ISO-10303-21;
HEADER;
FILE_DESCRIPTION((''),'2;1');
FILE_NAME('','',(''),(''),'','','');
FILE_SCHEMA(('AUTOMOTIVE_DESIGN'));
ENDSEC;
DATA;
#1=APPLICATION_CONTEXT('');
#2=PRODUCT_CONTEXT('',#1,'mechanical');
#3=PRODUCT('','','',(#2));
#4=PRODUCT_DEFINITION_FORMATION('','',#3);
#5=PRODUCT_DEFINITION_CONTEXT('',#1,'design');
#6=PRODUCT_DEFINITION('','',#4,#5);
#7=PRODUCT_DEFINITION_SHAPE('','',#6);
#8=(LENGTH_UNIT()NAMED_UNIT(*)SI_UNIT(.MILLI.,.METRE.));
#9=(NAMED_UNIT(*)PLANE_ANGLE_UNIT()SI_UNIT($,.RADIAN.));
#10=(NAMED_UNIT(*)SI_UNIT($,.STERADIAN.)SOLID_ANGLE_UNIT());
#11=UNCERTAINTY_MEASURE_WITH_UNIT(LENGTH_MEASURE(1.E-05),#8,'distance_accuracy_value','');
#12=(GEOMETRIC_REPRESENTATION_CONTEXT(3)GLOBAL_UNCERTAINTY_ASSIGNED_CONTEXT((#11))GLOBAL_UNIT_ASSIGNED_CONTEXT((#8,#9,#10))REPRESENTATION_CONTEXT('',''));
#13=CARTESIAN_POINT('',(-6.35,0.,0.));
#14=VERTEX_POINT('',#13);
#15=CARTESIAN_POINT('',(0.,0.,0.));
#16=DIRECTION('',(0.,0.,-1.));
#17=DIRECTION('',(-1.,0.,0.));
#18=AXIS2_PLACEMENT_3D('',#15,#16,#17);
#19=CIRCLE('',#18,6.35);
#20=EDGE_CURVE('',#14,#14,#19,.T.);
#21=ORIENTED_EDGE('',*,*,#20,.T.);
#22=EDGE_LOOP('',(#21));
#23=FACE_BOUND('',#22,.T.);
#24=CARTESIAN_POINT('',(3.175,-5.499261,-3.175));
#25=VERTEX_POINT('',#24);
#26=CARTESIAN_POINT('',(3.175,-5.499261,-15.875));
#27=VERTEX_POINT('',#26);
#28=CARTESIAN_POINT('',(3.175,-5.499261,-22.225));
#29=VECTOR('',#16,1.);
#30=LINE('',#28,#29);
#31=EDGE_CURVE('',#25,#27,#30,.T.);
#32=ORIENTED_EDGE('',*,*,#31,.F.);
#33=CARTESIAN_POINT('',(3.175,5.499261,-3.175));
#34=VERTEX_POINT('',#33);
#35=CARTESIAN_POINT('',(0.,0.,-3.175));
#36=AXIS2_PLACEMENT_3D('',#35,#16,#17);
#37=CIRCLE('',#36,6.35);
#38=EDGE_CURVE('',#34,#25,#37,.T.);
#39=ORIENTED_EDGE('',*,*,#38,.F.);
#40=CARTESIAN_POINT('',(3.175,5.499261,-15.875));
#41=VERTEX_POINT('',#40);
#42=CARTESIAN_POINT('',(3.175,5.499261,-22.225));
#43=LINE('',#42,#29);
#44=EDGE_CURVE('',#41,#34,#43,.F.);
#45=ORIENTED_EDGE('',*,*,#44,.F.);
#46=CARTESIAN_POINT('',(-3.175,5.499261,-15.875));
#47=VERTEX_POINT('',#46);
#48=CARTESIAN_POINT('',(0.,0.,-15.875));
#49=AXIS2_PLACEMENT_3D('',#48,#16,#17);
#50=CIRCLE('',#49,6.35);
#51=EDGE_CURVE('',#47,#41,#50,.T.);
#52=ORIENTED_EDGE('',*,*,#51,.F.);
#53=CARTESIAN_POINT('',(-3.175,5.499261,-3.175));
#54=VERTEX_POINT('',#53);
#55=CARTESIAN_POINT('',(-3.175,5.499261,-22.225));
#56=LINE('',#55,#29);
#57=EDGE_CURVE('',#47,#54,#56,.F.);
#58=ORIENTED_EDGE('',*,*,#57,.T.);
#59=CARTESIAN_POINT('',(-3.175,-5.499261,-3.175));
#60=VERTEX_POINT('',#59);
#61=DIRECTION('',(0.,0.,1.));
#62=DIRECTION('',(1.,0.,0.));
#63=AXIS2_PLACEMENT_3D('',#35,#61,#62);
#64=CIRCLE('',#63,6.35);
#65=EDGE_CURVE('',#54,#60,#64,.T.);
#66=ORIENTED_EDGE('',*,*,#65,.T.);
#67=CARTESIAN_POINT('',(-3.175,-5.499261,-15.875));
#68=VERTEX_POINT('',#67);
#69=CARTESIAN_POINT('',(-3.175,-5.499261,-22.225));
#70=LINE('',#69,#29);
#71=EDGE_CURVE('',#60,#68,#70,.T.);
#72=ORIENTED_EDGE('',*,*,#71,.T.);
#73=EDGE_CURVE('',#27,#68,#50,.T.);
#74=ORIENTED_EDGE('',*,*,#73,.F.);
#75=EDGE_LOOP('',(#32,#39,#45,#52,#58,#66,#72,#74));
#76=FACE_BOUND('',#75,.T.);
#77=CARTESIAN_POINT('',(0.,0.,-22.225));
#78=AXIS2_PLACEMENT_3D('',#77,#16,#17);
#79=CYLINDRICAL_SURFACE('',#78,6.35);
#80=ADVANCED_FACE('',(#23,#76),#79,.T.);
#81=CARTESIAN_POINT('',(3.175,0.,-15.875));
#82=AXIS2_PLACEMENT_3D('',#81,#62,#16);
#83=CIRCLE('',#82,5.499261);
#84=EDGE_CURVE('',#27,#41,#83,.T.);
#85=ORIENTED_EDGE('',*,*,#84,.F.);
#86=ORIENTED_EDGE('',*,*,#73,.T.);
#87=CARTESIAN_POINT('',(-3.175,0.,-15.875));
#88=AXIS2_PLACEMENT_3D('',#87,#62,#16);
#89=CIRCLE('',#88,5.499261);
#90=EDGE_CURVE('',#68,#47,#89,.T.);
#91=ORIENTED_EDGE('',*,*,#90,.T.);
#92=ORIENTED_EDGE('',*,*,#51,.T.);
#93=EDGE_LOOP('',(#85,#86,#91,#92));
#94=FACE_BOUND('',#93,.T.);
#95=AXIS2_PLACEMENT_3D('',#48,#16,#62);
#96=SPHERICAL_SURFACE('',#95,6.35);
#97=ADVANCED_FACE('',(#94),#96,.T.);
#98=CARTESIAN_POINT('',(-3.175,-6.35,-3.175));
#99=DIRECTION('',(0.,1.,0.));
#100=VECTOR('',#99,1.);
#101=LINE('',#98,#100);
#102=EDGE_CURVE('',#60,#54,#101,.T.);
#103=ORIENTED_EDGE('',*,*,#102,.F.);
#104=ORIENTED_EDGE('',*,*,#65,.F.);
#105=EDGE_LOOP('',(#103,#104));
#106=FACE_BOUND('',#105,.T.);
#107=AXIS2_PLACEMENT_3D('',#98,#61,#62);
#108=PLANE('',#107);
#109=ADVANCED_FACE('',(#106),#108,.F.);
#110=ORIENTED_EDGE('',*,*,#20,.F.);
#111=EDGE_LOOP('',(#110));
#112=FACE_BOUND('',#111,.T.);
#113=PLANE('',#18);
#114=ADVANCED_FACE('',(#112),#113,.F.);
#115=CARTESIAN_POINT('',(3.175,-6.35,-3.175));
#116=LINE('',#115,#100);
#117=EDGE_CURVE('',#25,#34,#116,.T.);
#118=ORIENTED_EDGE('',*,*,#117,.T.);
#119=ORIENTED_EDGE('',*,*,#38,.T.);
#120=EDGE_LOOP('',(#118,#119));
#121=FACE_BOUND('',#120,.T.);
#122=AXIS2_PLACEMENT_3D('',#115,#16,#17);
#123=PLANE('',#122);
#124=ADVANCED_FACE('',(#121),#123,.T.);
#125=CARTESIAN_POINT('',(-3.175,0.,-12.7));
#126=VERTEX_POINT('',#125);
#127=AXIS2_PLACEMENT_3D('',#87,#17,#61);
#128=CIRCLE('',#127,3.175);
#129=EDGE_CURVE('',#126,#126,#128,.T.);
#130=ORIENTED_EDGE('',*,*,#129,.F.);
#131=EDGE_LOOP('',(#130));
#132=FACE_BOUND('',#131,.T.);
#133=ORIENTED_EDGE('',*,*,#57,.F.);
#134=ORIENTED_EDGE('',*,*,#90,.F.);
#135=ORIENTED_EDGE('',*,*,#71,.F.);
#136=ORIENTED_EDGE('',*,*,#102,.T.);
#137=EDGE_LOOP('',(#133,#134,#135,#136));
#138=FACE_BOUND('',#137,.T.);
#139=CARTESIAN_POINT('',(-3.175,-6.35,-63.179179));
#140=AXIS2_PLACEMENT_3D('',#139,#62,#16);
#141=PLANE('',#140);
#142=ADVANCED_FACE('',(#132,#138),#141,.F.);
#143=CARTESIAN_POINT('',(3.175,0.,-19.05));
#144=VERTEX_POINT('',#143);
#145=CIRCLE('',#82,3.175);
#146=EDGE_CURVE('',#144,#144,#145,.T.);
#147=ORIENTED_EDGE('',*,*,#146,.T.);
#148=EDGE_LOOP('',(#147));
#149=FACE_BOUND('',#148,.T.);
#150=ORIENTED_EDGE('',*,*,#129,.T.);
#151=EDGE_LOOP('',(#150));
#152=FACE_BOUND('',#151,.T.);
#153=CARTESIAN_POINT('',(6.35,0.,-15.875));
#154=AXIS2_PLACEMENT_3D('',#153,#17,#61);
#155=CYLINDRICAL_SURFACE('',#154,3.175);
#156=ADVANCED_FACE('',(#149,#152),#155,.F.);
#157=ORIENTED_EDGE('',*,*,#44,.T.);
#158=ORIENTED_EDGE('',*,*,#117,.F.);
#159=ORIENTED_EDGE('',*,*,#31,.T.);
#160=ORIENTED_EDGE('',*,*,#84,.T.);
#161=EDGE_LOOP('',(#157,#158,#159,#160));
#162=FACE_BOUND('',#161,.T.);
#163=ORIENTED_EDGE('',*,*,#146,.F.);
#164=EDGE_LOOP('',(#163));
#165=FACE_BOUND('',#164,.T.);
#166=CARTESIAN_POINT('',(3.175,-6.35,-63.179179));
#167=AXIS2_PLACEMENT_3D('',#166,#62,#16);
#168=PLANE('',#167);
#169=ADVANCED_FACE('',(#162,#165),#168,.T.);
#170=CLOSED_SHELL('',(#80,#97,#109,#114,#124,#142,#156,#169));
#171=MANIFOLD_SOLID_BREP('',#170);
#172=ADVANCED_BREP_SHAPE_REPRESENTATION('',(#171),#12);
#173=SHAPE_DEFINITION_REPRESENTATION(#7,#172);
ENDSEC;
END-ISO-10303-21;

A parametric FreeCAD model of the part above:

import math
import FreeCAD as App
import Part
import Sketcher

V = App.Vector
Q = App.Units.Quantity


def add_polygon(sketch, points):
    """Adds a closed chain of lines whose ends are joined by coincident constraints."""
    first, n = sketch.GeometryCount, len(points)
    for a, b in zip(points, points[1:] + points[:1]):
        sketch.addGeometry(Part.LineSegment(App.Vector(*a, 0), App.Vector(*b, 0)), False)
    for i in range(n):
        sketch.addConstraint(Sketcher.Constraint("Coincident", first + i, 2, first + (i + 1) % n, 1))

doc = App.newDocument("Part")
body = doc.addObject("PartDesign::Body", "Body")

sketch1 = body.newObject("Sketcher::SketchObject", "Sketch")
sketch1.AttachmentSupport = (doc.getObject("XZ_Plane"), [""])
sketch1.MapMode = "FlatFace"
sketch1.addGeometry(Part.LineSegment(V(0, -22.225, 0), V(0, 0, 0)), False)
sketch1.addGeometry(Part.LineSegment(V(0, 0, 0), V(6.35, 0, 0)), False)
sketch1.addGeometry(Part.LineSegment(V(6.35, 0, 0), V(6.35, -15.875, 0)), False)
sketch1.addGeometry(Part.ArcOfCircle(Part.Circle(V(0, -15.875, 0), V(0, 0, 1), 6.35), math.radians(-90), math.radians(0)), False)
sketch1.addConstraint(Sketcher.Constraint("Coincident", 0, 2, 1, 1))
sketch1.addConstraint(Sketcher.Constraint("Coincident", 1, 2, 2, 1))
sketch1.addConstraint(Sketcher.Constraint("Tangent", 2, 2, 3, 2))
sketch1.addConstraint(Sketcher.Constraint("Coincident", 3, 1, 0, 1))
sketch1.addConstraint(Sketcher.Constraint("Vertical", 0))
sketch1.addConstraint(Sketcher.Constraint("Horizontal", 1))
sketch1.addConstraint(Sketcher.Constraint("Vertical", 2))
sketch1.addConstraint(Sketcher.Constraint("Coincident", 0, 2, -1, 1))
sketch1.addConstraint(Sketcher.Constraint("PointOnObject", 3, 3, -2))
sketch1.addConstraint(Sketcher.Constraint("Radius", 3, Q("0.25 in")))
sketch1.addConstraint(Sketcher.Constraint("DistanceY", 0, 1, 0, 2, Q("0.875 in")))
revolution = body.newObject("PartDesign::Revolution", "Revolution")
revolution.Profile = sketch1
revolution.ReferenceAxis = (sketch1, ["V_Axis"])
revolution.Angle = 360

sketch2 = body.newObject("Sketcher::SketchObject", "Sketch001")
sketch2.AttachmentSupport = (doc.getObject("XZ_Plane"), [""])
sketch2.MapMode = "FlatFace"
add_polygon(sketch2, [(-15.875, -63.179179), (-15.875, -3.175), (-3.175, -3.175), (-3.175, -63.179179)])
sketch2.addConstraint(Sketcher.Constraint("Vertical", 0))
sketch2.addConstraint(Sketcher.Constraint("Horizontal", 1))
sketch2.addConstraint(Sketcher.Constraint("Vertical", 2))
sketch2.addConstraint(Sketcher.Constraint("Horizontal", 3))
sketch2.addConstraint(Sketcher.Constraint("DistanceX", 1, 1, 1, 2, Q("0.5 in")))
sketch2.addConstraint(Sketcher.Constraint("DistanceX", 0, 2, -1, 1, Q("0.625 in")))
sketch2.addConstraint(Sketcher.Constraint("DistanceY", 0, 2, -1, 1, Q("0.125 in")))
sketch2.addConstraint(Sketcher.Constraint("DistanceY", 0, 1, 0, 2, 60.004179))
pocket1 = body.newObject("PartDesign::Pocket", "Pocket")
pocket1.Profile = sketch2
pocket1.Length = 49.941449
pocket1.Midplane = True
doc.recompute()

mirrored = body.newObject("PartDesign::Mirrored", "Mirrored")
mirrored.Originals = [pocket1]
mirrored.MirrorPlane = (doc.getObject("YZ_Plane"), [""])
body.Tip = mirrored

sketch3 = body.newObject("Sketcher::SketchObject", "Sketch002")
sketch3.AttachmentSupport = (doc.getObject("YZ_Plane"), [""])
sketch3.MapMode = "FlatFace"
sketch3.AttachmentOffset = App.Placement(V(0, 0, -0.125 * 25.4), App.Rotation())
sketch3.addGeometry(Part.Circle(V(0, -15.875, 0), V(0, 0, 1), 3.175), False)
sketch3.addConstraint(Sketcher.Constraint("PointOnObject", 0, 3, -2))
sketch3.addConstraint(Sketcher.Constraint("Diameter", 0, Q("0.25 in")))
sketch3.addConstraint(Sketcher.Constraint("DistanceY", 0, 3, -1, 1, Q("0.625 in")))
pocket2 = body.newObject("PartDesign::Pocket", "Pocket001")
pocket2.Profile = sketch3
pocket2.Type = "ThroughAll"
pocket2.Reversed = True

doc.recompute()
